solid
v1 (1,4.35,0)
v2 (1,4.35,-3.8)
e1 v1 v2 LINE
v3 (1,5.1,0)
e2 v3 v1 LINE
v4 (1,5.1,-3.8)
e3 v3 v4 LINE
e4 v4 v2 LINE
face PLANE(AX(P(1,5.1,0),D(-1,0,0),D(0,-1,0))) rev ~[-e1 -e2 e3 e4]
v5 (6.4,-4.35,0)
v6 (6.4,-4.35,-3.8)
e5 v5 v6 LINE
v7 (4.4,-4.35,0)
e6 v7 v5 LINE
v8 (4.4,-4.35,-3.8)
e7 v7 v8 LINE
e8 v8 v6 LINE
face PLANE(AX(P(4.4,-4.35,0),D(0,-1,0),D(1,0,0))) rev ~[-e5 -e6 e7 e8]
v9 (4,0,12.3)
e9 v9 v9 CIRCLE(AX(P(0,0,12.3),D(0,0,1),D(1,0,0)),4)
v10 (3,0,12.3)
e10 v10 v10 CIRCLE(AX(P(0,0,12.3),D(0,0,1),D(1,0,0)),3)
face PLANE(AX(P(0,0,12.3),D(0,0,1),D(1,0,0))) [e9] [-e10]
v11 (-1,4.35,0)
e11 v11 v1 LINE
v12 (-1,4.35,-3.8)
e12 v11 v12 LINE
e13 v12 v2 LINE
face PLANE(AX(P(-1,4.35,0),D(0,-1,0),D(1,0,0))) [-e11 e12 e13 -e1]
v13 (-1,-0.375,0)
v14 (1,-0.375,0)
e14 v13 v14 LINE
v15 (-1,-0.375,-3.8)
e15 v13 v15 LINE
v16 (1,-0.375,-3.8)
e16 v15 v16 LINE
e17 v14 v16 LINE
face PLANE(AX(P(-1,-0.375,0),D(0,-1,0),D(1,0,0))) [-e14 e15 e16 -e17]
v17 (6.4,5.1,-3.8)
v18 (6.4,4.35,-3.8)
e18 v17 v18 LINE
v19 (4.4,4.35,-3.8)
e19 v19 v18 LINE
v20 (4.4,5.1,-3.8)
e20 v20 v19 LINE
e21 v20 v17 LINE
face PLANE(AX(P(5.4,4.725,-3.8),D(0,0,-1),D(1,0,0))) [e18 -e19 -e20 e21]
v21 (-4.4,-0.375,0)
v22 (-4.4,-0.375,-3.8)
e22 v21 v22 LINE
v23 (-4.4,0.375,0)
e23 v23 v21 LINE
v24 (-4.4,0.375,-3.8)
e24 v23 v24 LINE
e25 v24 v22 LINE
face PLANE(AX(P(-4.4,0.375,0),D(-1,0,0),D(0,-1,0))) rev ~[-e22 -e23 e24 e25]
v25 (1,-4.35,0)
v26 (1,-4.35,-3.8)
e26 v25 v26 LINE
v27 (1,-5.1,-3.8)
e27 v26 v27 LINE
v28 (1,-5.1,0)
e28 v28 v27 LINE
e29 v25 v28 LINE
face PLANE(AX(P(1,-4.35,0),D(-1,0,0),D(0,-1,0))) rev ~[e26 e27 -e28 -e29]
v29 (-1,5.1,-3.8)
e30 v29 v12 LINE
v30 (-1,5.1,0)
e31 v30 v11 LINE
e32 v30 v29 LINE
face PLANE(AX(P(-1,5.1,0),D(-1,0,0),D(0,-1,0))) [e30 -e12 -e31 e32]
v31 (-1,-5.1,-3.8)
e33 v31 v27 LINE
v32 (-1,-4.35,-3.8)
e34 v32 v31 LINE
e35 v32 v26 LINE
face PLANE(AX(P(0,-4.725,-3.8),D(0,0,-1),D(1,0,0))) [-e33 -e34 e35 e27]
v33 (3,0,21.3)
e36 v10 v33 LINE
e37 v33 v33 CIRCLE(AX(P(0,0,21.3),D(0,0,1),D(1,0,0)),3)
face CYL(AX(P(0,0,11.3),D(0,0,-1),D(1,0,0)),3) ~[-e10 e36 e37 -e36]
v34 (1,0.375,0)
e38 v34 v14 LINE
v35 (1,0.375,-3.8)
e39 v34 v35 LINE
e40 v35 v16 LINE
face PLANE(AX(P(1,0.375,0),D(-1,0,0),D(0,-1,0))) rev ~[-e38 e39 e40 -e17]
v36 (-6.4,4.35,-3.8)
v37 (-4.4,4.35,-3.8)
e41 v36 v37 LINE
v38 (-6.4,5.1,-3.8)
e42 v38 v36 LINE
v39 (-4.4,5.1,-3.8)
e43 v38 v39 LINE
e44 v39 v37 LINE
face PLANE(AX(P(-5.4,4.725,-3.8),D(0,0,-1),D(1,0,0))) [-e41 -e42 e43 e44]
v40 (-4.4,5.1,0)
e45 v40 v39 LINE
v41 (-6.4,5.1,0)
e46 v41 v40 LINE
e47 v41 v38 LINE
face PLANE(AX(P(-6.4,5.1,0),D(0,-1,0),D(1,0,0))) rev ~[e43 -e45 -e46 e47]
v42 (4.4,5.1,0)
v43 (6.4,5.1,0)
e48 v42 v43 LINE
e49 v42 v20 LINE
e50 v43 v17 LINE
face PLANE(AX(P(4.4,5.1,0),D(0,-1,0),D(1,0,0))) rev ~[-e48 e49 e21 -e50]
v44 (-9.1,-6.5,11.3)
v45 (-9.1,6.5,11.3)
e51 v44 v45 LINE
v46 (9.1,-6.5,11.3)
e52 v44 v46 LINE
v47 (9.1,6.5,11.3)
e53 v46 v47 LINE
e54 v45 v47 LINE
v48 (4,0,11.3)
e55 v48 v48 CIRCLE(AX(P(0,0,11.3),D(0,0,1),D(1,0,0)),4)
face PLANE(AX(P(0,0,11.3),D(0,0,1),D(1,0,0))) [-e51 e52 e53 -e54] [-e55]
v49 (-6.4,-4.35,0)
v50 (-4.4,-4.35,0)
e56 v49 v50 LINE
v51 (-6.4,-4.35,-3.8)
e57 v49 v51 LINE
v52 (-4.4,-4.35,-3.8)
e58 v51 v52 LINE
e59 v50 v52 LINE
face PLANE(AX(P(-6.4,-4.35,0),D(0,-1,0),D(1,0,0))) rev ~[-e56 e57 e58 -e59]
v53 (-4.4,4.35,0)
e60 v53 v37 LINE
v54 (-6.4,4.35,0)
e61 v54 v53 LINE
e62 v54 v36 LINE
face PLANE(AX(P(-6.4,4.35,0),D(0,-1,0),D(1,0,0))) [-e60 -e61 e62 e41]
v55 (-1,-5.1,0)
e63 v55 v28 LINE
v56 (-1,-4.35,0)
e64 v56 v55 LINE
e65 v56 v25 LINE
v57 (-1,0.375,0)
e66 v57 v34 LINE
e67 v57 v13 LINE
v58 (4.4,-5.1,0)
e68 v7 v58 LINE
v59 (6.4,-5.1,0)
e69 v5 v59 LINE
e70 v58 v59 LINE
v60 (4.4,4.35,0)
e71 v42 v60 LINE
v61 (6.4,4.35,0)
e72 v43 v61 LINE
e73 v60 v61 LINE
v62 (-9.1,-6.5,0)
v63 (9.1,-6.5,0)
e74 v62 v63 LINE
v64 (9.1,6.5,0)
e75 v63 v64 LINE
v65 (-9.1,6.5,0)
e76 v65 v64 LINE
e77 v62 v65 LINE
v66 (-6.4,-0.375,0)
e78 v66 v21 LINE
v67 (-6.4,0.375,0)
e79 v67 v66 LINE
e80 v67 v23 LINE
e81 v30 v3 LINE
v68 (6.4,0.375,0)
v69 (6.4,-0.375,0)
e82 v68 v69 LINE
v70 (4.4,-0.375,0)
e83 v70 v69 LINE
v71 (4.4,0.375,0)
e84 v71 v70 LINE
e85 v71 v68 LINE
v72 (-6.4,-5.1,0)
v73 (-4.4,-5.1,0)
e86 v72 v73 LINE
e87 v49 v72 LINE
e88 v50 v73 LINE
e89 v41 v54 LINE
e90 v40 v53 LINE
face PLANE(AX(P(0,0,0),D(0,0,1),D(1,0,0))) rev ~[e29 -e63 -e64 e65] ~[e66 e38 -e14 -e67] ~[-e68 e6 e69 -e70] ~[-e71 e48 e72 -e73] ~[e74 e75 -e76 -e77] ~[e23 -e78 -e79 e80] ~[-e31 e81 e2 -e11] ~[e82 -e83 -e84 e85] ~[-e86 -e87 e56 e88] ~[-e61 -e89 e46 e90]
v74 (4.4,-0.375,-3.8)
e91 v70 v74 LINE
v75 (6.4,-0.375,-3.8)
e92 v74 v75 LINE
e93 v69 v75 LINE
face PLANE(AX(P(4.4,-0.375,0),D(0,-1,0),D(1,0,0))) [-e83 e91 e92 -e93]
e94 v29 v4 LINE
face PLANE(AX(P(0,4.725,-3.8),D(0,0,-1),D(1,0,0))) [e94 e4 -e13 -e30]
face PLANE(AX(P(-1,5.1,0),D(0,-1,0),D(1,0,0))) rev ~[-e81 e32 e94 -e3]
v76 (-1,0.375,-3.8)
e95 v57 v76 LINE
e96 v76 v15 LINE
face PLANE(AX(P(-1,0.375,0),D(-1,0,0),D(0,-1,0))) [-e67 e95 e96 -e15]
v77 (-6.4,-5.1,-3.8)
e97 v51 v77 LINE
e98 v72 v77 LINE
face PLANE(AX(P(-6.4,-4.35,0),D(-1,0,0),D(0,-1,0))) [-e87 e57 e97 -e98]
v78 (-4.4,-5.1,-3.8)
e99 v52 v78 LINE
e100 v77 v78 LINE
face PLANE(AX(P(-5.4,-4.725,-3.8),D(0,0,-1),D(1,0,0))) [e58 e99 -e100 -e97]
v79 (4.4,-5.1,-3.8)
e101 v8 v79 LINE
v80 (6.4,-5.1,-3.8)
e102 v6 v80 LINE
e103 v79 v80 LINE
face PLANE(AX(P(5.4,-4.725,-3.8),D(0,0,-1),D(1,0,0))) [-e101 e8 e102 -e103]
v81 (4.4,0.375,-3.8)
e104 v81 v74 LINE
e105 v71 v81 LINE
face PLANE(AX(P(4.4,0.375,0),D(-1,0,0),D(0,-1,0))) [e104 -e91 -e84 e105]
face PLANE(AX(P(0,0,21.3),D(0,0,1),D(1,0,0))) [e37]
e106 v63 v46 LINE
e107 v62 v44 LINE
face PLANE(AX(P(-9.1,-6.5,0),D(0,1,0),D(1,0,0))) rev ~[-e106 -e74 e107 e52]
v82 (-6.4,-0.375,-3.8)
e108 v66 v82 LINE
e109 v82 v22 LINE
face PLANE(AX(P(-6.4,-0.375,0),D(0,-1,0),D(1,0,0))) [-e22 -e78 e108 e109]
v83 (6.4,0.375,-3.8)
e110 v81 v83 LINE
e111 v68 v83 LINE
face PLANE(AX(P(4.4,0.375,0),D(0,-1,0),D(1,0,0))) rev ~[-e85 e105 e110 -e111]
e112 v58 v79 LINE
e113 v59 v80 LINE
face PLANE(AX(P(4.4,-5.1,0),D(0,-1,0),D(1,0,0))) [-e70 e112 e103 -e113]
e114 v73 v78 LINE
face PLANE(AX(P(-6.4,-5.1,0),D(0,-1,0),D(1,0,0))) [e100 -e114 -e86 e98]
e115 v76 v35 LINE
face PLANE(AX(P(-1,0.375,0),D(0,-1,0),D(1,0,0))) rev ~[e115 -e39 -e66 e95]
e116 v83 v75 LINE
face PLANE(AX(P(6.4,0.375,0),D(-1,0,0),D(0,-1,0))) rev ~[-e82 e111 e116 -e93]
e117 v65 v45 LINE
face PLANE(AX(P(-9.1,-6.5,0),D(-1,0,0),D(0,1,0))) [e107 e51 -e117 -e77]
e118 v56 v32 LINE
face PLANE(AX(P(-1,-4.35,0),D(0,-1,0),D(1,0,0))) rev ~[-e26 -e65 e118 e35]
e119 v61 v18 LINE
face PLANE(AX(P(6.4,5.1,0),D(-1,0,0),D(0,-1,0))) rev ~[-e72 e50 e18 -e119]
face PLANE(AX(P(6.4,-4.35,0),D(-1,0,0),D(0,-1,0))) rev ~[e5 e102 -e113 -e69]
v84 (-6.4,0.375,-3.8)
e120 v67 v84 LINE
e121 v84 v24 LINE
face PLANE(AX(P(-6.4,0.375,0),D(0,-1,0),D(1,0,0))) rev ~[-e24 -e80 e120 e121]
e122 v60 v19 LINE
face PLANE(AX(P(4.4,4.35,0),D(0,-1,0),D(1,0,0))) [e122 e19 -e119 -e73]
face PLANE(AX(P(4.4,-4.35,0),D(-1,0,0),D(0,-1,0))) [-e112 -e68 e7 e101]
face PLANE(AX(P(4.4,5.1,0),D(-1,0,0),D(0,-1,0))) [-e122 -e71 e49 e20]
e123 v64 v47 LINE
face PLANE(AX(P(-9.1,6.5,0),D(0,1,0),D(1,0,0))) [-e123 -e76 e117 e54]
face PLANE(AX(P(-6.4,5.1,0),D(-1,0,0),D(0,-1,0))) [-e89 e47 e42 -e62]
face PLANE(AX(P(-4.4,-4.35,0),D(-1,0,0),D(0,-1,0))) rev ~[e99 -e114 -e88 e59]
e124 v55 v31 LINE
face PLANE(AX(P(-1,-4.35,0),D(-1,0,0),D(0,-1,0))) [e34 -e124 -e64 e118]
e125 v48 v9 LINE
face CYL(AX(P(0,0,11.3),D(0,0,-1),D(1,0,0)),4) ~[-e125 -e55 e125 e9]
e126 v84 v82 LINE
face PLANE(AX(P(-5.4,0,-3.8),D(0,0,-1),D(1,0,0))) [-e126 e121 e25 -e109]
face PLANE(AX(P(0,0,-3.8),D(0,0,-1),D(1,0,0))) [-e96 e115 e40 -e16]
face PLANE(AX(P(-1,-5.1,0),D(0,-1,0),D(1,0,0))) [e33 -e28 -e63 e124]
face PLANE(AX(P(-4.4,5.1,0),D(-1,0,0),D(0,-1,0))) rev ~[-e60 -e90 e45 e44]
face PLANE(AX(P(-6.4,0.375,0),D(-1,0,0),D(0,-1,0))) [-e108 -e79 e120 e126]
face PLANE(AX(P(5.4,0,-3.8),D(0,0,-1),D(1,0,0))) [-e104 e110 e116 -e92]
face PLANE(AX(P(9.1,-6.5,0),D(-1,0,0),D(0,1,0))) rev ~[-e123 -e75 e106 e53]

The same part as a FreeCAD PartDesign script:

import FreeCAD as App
import Part
import Sketcher
from FreeCAD import Vector


def add_polygon(sketch, points):
    """Adds a closed chain of lines whose ends are joined by coincident constraints."""
    first, n = sketch.GeometryCount, len(points)
    for a, b in zip(points, points[1:] + points[:1]):
        sketch.addGeometry(Part.LineSegment(App.Vector(*a, 0), App.Vector(*b, 0)), False)
    for i in range(n):
        sketch.addConstraint(Sketcher.Constraint("Coincident", first + i, 2, first + (i + 1) % n, 1))

doc = App.newDocument("Part")
body = doc.addObject("PartDesign::Body", "Body")

# Sketch on XY plane
sketch1 = body.newObject("Sketcher::SketchObject", "Sketch")
sketch1.AttachmentSupport = (doc.getObject("XY_Plane"), [""])
sketch1.MapMode = "FlatFace"
add_polygon(sketch1, [(-9.1, 6.5), (-9.1, -6.5), (9.1, -6.5), (9.1, 6.5)])  # lines 0-3
sketch1.addConstraint([
    Sketcher.Constraint("Vertical", 0),
    Sketcher.Constraint("Horizontal", 1),
    Sketcher.Constraint("Vertical", 2),
    Sketcher.Constraint("Horizontal", 3),
    Sketcher.Constraint("Symmetric", 0, 2, 2, 2, -1, 1),
    Sketcher.Constraint("DistanceY", 0, 2, 0, 1, 13.0),
    Sketcher.Constraint("DistanceX", 1, 1, 1, 2, 18.2),
])
pad1 = body.newObject("PartDesign::Pad", "Pad")
pad1.Profile = sketch1
pad1.Length = 11.3

# Sketch on XY plane
sketch2 = body.newObject("Sketcher::SketchObject", "Sketch001")
sketch2.AttachmentSupport = (doc.getObject("XY_Plane"), [""])
sketch2.MapMode = "FlatFace"
sketch2.AttachmentOffset = App.Placement(Vector(0, 0, 11.3), App.Rotation())
sketch2.addGeometry([
    Part.Circle(Vector(0, 0, 0), Vector(0, 0, 1), 4),
    Part.Circle(Vector(0, 0, 0), Vector(0, 0, 1), 3),
], False)
sketch2.addConstraint([
    Sketcher.Constraint("Coincident", 0, 3, -1, 1),
    Sketcher.Constraint("Coincident", 1, 3, -1, 1),
    Sketcher.Constraint("Diameter", 0, 8.0),
    Sketcher.Constraint("Diameter", 1, 6.0),
])
pad2 = body.newObject("PartDesign::Pad", "Pad001")
pad2.Profile = sketch2
pad2.Length = 1

# Sketch on XY plane
sketch3 = body.newObject("Sketcher::SketchObject", "Sketch002")
sketch3.AttachmentSupport = (doc.getObject("XY_Plane"), [""])
sketch3.MapMode = "FlatFace"
sketch3.AttachmentOffset = App.Placement(Vector(0, 0, 11.3), App.Rotation())
sketch3.addGeometry(Part.Circle(Vector(0, 0, 0), Vector(0, 0, 1), 3), False)
sketch3.addConstraint([
    Sketcher.Constraint("Coincident", 0, 3, -1, 1),
    Sketcher.Constraint("Diameter", 0, 6.0),
])
pad3 = body.newObject("PartDesign::Pad", "Pad002")
pad3.Profile = sketch3
pad3.Length = 10

# Sketch on XY plane
sketch4 = body.newObject("Sketcher::SketchObject", "Sketch003")
sketch4.AttachmentSupport = (doc.getObject("XY_Plane"), [""])
sketch4.MapMode = "FlatFace"
add_polygon(sketch4, [(-6.4, -5.1), (-6.4, -4.35), (-4.4, -4.35), (-4.4, -5.1)])  # lines 0-3
add_polygon(sketch4, [(-1, -5.1), (-1, -4.35), (1, -4.35), (1, -5.1)])  # lines 4-7
add_polygon(sketch4, [(4.4, -5.1), (4.4, -4.35), (6.4, -4.35), (6.4, -5.1)])  # lines 8-11
add_polygon(sketch4, [(4.4, -0.375), (4.4, 0.375), (6.4, 0.375), (6.4, -0.375)])  # lines 12-15
add_polygon(sketch4, [(-1, -0.375), (-1, 0.375), (1, 0.375), (1, -0.375)])  # lines 16-19
add_polygon(sketch4, [(-6.4, -0.375), (-6.4, 0.375), (-4.4, 0.375), (-4.4, -0.375)])  # lines 20-23
add_polygon(sketch4, [(4.4, 4.35), (4.4, 5.1), (6.4, 5.1), (6.4, 4.35)])  # lines 24-27
add_polygon(sketch4, [(-1, 4.35), (-1, 5.1), (1, 5.1), (1, 4.35)])  # lines 28-31
add_polygon(sketch4, [(-6.4, 4.35), (-6.4, 5.1), (-4.4, 5.1), (-4.4, 4.35)])  # lines 32-35
sketch4.addConstraint([
    Sketcher.Constraint("Vertical", 0),
    Sketcher.Constraint("Horizontal", 1),
    Sketcher.Constraint("Vertical", 2),
    Sketcher.Constraint("Horizontal", 3),
    Sketcher.Constraint("Vertical", 4),
    Sketcher.Constraint("Horizontal", 5),
    Sketcher.Constraint("Vertical", 6),
    Sketcher.Constraint("Horizontal", 7),
    Sketcher.Constraint("Vertical", 8),
    Sketcher.Constraint("Horizontal", 9),
    Sketcher.Constraint("Vertical", 10),
    Sketcher.Constraint("Horizontal", 11),
    Sketcher.Constraint("Vertical", 12),
    Sketcher.Constraint("Horizontal", 13),
    Sketcher.Constraint("Vertical", 14),
    Sketcher.Constraint("Horizontal", 15),
    Sketcher.Constraint("Vertical", 16),
    Sketcher.Constraint("Horizontal", 17),
    Sketcher.Constraint("Vertical", 18),
    Sketcher.Constraint("Horizontal", 19),
    Sketcher.Constraint("Vertical", 20),
    Sketcher.Constraint("Horizontal", 21),
    Sketcher.Constraint("Vertical", 22),
    Sketcher.Constraint("Horizontal", 23),
    Sketcher.Constraint("Vertical", 24),
    Sketcher.Constraint("Horizontal", 25),
    Sketcher.Constraint("Vertical", 26),
    Sketcher.Constraint("Horizontal", 27),
    Sketcher.Constraint("Vertical", 28),
    Sketcher.Constraint("Horizontal", 29),
    Sketcher.Constraint("Vertical", 30),
    Sketcher.Constraint("Horizontal", 31),
    Sketcher.Constraint("Vertical", 32),
    Sketcher.Constraint("Horizontal", 33),
    Sketcher.Constraint("Vertical", 34),
    Sketcher.Constraint("Horizontal", 35),
    Sketcher.Constraint("Symmetric", 16, 2, 18, 2, -1, 1),
    Sketcher.Constraint("Symmetric", 14, 2, 20, 2, -1, 1),
    Sketcher.Constraint("Symmetric", 12, 2, 22, 2, -1, 1),
    Sketcher.Constraint("Symmetric", 2, 2, 24, 2, -1, 1),
    Sketcher.Constraint("Symmetric", 0, 2, 26, 2, -1, 1),
    Sketcher.Constraint("Symmetric", 6, 2, 28, 2, -1, 1),
    Sketcher.Constraint("Symmetric", 4, 2, 30, 2, -1, 1),
    Sketcher.Constraint("Symmetric", 10, 2, 32, 2, -1, 1),
    Sketcher.Constraint("Symmetric", 8, 2, 34, 2, -1, 1),
    Sketcher.Constraint("Symmetric", 1, 2, 8, 2, -2),
    Sketcher.Constraint("Symmetric", 3, 2, 10, 2, -2),
    Sketcher.Constraint("Horizontal", 1, 2, 4, 2),
    Sketcher.Constraint("Horizontal", 3, 2, 6, 2),
    Sketcher.Constraint("Horizontal", 13, 2, 16, 2),
    Sketcher.Constraint("Horizontal", 15, 2, 18, 2),
    Sketcher.Constraint("Vertical", 11, 2, 12, 2),
    Sketcher.Constraint("Vertical", 10, 2, 13, 2),
    Sketcher.Constraint("Vertical", 7, 2, 16, 2),
    Sketcher.Constraint("Vertical", 6, 2, 17, 2),
    Sketcher.Constraint("Equal", 3, 5),
    Sketcher.Constraint("Equal", 10, 12),
    Sketcher.Constraint("DistanceX", 1, 1, 1, 2, 2.0),
    Sketcher.Constraint("DistanceY", 0, 1, 0, 2, 0.75),
    Sketcher.Constraint("DistanceX", 0, 2, -1, 1, 6.4),
    Sketcher.Constraint("DistanceY", 2, 2, -1, 1, 5.1),
])
pad4 = body.newObject("PartDesign::Pad", "Pad003")
pad4.Profile = sketch4
pad4.Length = 3.8
pad4.Reversed = True

doc.recompute()
